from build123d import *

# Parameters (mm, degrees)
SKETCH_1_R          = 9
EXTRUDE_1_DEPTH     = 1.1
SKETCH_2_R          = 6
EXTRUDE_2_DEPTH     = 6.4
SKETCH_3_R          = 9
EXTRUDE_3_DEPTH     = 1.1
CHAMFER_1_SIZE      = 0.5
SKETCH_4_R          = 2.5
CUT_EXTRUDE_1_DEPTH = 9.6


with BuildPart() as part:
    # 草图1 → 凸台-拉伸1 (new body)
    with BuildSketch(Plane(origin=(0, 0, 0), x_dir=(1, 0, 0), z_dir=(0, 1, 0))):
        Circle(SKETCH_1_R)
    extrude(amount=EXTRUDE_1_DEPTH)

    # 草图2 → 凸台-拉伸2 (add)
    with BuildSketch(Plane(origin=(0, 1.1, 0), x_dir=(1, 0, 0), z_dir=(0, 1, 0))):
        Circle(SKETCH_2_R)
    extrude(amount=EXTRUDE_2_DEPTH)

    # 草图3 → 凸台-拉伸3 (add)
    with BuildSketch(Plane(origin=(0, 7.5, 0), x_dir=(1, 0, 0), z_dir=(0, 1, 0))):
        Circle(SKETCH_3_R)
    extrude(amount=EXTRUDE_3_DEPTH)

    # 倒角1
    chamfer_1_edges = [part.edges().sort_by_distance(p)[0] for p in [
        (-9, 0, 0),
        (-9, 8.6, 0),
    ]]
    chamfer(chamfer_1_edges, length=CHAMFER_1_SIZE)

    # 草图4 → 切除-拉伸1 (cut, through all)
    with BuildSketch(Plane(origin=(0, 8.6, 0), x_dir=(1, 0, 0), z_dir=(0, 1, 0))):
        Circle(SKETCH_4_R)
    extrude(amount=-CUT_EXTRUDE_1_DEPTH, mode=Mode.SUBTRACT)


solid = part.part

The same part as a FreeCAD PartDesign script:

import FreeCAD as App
import Part
import Sketcher
from FreeCAD import Vector


def edges_at(feature, points):
    """Names of the edges that pass closest to the given points."""
    edges = feature.Shape.Edges
    near = lambda p: min(range(len(edges)), key=lambda i: edges[i].distToShape(Part.Vertex(*p))[0])
    return sorted({f"Edge{near(p) + 1}" for p in points})

doc = App.newDocument("Part")
body = doc.addObject("PartDesign::Body", "Body")

# Sketch on XZ plane
sketch1 = body.newObject("Sketcher::SketchObject", "Sketch")
sketch1.AttachmentSupport = (doc.getObject("XZ_Plane"), [""])
sketch1.MapMode = "FlatFace"
sketch1.addGeometry(Part.Circle(Vector(0, 0, 0), Vector(0, 0, 1), 9), False)
sketch1.addConstraint([
    Sketcher.Constraint("Coincident", 0, 3, -1, 1),
    Sketcher.Constraint("Diameter", 0, 18.0),
])
pad1 = body.newObject("PartDesign::Pad", "Pad")
pad1.Profile = sketch1
pad1.Length = 1.1
pad1.Reversed = True

# Sketch on XZ plane
sketch2 = body.newObject("Sketcher::SketchObject", "Sketch001")
sketch2.AttachmentSupport = (doc.getObject("XZ_Plane"), [""])
sketch2.MapMode = "FlatFace"
sketch2.AttachmentOffset = App.Placement(Vector(0, 0, -1.1), App.Rotation())
sketch2.addGeometry(Part.Circle(Vector(0, 0, 0), Vector(0, 0, 1), 6), False)
sketch2.addConstraint([
    Sketcher.Constraint("Coincident", 0, 3, -1, 1),
    Sketcher.Constraint("Diameter", 0, 12.0),
])
pad2 = body.newObject("PartDesign::Pad", "Pad001")
pad2.Profile = sketch2
pad2.Length = 6.4
pad2.Reversed = True

# Sketch on XZ plane
sketch3 = body.newObject("Sketcher::SketchObject", "Sketch002")
sketch3.AttachmentSupport = (doc.getObject("XZ_Plane"), [""])
sketch3.MapMode = "FlatFace"
sketch3.AttachmentOffset = App.Placement(Vector(0, 0, -7.5), App.Rotation())
sketch3.addGeometry(Part.Circle(Vector(0, 0, 0), Vector(0, 0, 1), 9), False)
sketch3.addConstraint([
    Sketcher.Constraint("Coincident", 0, 3, -1, 1),
    Sketcher.Constraint("Diameter", 0, 18.0),
])
pad3 = body.newObject("PartDesign::Pad", "Pad002")
pad3.Profile = sketch3
pad3.Length = 1.1
pad3.Reversed = True
doc.recompute()

chamfer = body.newObject("PartDesign::Chamfer", "Chamfer")
chamfer.Base = (pad3, edges_at(pad3, [(-9, 0, 0), (-9, 8.6, 0)]))
chamfer.Size = 0.5

# Sketch on XZ plane
sketch4 = body.newObject("Sketcher::SketchObject", "Sketch003")
sketch4.AttachmentSupport = (doc.getObject("XZ_Plane"), [""])
sketch4.MapMode = "FlatFace"
sketch4.AttachmentOffset = App.Placement(Vector(0, 0, -8.6), App.Rotation())
sketch4.addGeometry(Part.Circle(Vector(0, 0, 0), Vector(0, 0, 1), 2.5), False)
sketch4.addConstraint([
    Sketcher.Constraint("Coincident", 0, 3, -1, 1),
    Sketcher.Constraint("Diameter", 0, 5.0),
])
pocket1 = body.newObject("PartDesign::Pocket", "Pocket")
pocket1.Profile = sketch4
pocket1.Type = "ThroughAll"
pocket1.Reversed = True

doc.recompute()
